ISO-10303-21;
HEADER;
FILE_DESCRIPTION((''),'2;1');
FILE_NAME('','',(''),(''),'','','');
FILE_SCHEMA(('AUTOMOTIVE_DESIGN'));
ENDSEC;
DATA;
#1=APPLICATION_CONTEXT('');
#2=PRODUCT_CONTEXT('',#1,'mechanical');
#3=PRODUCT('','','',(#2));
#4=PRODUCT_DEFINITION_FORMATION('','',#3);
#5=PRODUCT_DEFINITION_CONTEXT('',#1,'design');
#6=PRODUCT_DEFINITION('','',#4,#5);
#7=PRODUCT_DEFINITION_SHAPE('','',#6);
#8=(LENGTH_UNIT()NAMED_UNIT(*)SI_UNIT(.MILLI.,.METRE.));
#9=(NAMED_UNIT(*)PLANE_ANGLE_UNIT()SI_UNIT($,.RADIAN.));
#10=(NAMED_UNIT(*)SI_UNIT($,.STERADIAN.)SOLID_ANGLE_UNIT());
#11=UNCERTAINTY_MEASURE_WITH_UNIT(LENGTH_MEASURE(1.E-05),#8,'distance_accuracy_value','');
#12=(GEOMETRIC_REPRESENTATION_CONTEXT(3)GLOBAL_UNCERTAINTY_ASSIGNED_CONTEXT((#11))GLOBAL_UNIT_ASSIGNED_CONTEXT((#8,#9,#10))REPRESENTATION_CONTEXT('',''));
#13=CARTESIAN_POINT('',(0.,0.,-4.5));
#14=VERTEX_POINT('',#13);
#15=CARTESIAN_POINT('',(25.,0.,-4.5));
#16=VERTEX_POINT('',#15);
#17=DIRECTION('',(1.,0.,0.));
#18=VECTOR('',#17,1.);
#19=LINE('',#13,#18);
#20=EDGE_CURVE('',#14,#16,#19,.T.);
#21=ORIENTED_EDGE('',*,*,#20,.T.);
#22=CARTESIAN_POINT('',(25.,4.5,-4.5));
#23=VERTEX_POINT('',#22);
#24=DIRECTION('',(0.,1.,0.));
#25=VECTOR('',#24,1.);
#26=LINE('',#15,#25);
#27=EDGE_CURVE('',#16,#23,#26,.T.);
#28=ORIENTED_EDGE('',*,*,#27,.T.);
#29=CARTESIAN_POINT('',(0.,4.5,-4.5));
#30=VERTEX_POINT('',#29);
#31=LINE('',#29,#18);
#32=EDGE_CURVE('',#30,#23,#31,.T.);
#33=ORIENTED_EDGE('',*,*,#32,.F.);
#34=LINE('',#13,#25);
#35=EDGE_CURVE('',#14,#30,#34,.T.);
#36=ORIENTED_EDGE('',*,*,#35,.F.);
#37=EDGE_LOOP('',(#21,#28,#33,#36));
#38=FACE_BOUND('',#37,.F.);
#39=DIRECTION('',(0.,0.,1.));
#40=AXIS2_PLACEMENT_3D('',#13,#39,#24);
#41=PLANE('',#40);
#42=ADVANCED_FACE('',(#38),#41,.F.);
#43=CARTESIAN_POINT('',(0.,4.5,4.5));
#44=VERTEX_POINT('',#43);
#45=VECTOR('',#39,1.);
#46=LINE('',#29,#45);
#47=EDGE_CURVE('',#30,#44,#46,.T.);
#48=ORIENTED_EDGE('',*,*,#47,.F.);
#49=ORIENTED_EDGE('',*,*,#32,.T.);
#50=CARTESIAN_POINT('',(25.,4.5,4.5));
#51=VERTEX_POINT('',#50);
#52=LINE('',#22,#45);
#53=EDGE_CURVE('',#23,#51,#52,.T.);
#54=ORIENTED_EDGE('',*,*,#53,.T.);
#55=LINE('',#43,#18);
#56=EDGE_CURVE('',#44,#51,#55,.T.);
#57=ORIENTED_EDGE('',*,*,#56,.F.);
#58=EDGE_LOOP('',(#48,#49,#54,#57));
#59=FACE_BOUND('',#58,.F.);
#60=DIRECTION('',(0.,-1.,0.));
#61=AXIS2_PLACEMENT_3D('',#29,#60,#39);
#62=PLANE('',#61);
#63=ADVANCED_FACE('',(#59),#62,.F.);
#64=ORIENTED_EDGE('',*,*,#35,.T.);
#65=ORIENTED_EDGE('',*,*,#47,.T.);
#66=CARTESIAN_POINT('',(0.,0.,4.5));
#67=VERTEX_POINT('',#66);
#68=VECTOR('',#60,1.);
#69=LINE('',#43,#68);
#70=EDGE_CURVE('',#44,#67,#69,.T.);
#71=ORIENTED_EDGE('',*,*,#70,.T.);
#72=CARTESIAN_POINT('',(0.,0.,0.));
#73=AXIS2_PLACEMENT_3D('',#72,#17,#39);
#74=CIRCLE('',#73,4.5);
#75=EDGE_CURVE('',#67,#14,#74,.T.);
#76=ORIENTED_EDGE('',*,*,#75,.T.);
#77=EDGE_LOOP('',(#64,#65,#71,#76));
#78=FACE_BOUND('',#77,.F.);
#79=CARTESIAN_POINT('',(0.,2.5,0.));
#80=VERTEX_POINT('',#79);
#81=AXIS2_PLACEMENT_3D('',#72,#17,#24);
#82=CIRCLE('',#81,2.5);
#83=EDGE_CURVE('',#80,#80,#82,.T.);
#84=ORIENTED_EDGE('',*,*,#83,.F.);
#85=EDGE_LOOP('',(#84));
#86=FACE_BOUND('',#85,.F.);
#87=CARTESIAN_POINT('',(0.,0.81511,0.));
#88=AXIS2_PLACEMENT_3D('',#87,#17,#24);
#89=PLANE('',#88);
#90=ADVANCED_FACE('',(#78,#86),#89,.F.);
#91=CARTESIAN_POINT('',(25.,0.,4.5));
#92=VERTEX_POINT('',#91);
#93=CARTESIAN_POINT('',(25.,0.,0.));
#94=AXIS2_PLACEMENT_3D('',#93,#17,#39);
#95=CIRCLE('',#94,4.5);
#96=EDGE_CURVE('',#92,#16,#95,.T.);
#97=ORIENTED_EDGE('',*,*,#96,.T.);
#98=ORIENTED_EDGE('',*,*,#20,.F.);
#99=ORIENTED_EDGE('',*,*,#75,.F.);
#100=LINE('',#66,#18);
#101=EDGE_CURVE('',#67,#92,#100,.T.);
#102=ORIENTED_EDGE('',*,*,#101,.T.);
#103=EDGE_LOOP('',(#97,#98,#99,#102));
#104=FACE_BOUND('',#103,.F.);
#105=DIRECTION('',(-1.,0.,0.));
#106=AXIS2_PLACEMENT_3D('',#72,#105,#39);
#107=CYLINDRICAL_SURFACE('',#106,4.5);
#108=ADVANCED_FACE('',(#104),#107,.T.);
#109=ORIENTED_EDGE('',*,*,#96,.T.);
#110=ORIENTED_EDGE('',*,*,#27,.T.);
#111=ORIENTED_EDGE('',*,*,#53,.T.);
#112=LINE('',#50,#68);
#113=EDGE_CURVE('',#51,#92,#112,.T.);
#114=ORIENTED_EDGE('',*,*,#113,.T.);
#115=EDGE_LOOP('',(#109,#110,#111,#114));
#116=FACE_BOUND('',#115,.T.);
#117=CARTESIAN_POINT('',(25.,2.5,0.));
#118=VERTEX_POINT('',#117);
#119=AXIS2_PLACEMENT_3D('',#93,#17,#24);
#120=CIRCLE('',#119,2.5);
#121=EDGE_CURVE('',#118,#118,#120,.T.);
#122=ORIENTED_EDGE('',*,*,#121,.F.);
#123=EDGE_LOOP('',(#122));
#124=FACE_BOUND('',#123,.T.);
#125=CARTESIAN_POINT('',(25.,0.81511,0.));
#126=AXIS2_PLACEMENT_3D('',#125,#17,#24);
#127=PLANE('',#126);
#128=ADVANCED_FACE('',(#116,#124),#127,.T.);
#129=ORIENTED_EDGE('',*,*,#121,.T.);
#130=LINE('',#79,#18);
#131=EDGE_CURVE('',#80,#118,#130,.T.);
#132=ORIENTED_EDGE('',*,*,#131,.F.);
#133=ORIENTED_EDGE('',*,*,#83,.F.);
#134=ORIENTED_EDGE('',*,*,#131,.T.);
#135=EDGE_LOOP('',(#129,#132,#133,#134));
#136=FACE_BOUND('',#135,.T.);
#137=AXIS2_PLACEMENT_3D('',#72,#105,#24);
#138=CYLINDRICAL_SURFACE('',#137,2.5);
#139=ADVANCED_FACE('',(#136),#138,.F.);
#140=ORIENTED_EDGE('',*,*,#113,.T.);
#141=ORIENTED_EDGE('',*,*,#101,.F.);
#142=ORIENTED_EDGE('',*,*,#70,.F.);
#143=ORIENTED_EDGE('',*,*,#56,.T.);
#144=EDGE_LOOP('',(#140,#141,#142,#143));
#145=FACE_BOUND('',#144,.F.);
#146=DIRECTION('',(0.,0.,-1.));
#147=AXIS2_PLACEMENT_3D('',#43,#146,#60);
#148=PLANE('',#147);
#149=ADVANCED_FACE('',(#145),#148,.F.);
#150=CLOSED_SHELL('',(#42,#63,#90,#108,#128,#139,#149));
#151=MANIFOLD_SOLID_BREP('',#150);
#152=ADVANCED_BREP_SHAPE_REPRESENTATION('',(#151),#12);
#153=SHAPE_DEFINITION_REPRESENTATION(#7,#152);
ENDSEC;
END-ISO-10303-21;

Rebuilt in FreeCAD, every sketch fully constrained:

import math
import FreeCAD as App
import Part
import Sketcher
Q = App.Units.Quantity

doc = App.newDocument("Part")
body = doc.addObject("PartDesign::Body", "Body")

sketch1 = body.newObject("Sketcher::SketchObject", "Sketch")
sketch1.AttachmentSupport = (doc.getObject("YZ_Plane"), [""])
sketch1.MapMode = "FlatFace"
sketch1.addGeometry([
    Part.LineSegment(App.Vector(4.5, 4.5, 0), App.Vector(0, 4.5, 0)),
    Part.ArcOfCircle(Part.Circle(App.Vector(0, 0, 0), App.Vector(0, 0, 1), 4.5), math.radians(90), math.radians(270)),
    Part.LineSegment(App.Vector(0, -4.5, 0), App.Vector(4.5, -4.5, 0)),
    Part.LineSegment(App.Vector(4.5, -4.5, 0), App.Vector(4.5, 4.5, 0)),
    Part.Circle(App.Vector(0, 0, 0), App.Vector(0, 0, 1), 2.5),
], False)
sketch1.addConstraint([
    Sketcher.Constraint("Tangent", 0, 2, 1, 1),
    Sketcher.Constraint("Tangent", 1, 2, 2, 1),
    Sketcher.Constraint("Coincident", 2, 2, 3, 1),
    Sketcher.Constraint("Coincident", 3, 2, 0, 1),
    Sketcher.Constraint("Horizontal", 0),
    Sketcher.Constraint("Horizontal", 2),
    Sketcher.Constraint("Vertical", 3),
    Sketcher.Constraint("Coincident", 1, 3, -1, 1),
    Sketcher.Constraint("Coincident", 4, 3, -1, 1),
    Sketcher.Constraint("Diameter", 4, Q("5 mm")),
    Sketcher.Constraint("Radius", 1, Q("4.5 mm")),
    Sketcher.Constraint("DistanceX", 0, 2, 0, 1, Q("4.5 mm")),
])
pad1 = body.newObject("PartDesign::Pad", "Pad")
pad1.Profile = sketch1
pad1.Length = 25

doc.recompute()
